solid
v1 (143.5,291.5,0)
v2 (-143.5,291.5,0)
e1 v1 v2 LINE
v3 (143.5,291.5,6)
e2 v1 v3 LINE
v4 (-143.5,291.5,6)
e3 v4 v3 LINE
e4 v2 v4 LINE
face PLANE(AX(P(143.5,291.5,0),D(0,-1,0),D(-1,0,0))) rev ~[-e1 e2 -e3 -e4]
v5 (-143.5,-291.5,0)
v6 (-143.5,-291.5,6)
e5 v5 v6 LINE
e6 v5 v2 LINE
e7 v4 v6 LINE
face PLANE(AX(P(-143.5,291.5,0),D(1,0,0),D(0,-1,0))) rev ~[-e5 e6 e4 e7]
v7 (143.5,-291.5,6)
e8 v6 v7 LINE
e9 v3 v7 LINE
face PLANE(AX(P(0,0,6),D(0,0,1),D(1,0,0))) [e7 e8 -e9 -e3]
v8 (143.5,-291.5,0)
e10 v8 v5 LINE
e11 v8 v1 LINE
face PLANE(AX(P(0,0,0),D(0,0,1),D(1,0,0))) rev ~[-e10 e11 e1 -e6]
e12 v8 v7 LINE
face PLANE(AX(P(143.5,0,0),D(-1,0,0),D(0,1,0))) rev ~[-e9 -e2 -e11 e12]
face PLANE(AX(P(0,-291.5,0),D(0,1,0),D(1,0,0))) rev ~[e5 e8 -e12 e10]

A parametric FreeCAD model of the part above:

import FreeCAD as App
import Part
import Sketcher
from FreeCAD import Vector

doc = App.newDocument("Part")
body = doc.addObject("PartDesign::Body", "Body")

sketch1 = body.newObject("Sketcher::SketchObject", "Sketch")
sketch1.AttachmentSupport = (doc.getObject("XY_Plane"), [""])
sketch1.MapMode = "FlatFace"
sketch1.addGeometry([
    Part.LineSegment(Vector(144, 292, 0), Vector(-144, 292, 0)),
    Part.LineSegment(Vector(-144, 292, 0), Vector(-144, -292, 0)),
    Part.LineSegment(Vector(-144, -292, 0), Vector(144, -292, 0)),
    Part.LineSegment(Vector(144, -292, 0), Vector(144, 292, 0)),
], False)
sketch1.addConstraint([
    Sketcher.Constraint("Coincident", 0, 2, 1, 1),
    Sketcher.Constraint("Coincident", 1, 2, 2, 1),
    Sketcher.Constraint("Coincident", 2, 2, 3, 1),
    Sketcher.Constraint("Coincident", 3, 2, 0, 1),
    Sketcher.Constraint("Horizontal", 0),
    Sketcher.Constraint("Vertical", 1),
    Sketcher.Constraint("Horizontal", 2),
    Sketcher.Constraint("Vertical", 3),
    Sketcher.Constraint("Symmetric", 0, 2, 2, 2, -1, 1),
    Sketcher.Constraint("DistanceX", 0, 2, 0, 1, 287.0),
    Sketcher.Constraint("DistanceY", 1, 2, 1, 1, 583.0),
])
pad1 = body.newObject("PartDesign::Pad", "Pad")
pad1.Profile = sketch1
pad1.Length = 6

doc.recompute()
